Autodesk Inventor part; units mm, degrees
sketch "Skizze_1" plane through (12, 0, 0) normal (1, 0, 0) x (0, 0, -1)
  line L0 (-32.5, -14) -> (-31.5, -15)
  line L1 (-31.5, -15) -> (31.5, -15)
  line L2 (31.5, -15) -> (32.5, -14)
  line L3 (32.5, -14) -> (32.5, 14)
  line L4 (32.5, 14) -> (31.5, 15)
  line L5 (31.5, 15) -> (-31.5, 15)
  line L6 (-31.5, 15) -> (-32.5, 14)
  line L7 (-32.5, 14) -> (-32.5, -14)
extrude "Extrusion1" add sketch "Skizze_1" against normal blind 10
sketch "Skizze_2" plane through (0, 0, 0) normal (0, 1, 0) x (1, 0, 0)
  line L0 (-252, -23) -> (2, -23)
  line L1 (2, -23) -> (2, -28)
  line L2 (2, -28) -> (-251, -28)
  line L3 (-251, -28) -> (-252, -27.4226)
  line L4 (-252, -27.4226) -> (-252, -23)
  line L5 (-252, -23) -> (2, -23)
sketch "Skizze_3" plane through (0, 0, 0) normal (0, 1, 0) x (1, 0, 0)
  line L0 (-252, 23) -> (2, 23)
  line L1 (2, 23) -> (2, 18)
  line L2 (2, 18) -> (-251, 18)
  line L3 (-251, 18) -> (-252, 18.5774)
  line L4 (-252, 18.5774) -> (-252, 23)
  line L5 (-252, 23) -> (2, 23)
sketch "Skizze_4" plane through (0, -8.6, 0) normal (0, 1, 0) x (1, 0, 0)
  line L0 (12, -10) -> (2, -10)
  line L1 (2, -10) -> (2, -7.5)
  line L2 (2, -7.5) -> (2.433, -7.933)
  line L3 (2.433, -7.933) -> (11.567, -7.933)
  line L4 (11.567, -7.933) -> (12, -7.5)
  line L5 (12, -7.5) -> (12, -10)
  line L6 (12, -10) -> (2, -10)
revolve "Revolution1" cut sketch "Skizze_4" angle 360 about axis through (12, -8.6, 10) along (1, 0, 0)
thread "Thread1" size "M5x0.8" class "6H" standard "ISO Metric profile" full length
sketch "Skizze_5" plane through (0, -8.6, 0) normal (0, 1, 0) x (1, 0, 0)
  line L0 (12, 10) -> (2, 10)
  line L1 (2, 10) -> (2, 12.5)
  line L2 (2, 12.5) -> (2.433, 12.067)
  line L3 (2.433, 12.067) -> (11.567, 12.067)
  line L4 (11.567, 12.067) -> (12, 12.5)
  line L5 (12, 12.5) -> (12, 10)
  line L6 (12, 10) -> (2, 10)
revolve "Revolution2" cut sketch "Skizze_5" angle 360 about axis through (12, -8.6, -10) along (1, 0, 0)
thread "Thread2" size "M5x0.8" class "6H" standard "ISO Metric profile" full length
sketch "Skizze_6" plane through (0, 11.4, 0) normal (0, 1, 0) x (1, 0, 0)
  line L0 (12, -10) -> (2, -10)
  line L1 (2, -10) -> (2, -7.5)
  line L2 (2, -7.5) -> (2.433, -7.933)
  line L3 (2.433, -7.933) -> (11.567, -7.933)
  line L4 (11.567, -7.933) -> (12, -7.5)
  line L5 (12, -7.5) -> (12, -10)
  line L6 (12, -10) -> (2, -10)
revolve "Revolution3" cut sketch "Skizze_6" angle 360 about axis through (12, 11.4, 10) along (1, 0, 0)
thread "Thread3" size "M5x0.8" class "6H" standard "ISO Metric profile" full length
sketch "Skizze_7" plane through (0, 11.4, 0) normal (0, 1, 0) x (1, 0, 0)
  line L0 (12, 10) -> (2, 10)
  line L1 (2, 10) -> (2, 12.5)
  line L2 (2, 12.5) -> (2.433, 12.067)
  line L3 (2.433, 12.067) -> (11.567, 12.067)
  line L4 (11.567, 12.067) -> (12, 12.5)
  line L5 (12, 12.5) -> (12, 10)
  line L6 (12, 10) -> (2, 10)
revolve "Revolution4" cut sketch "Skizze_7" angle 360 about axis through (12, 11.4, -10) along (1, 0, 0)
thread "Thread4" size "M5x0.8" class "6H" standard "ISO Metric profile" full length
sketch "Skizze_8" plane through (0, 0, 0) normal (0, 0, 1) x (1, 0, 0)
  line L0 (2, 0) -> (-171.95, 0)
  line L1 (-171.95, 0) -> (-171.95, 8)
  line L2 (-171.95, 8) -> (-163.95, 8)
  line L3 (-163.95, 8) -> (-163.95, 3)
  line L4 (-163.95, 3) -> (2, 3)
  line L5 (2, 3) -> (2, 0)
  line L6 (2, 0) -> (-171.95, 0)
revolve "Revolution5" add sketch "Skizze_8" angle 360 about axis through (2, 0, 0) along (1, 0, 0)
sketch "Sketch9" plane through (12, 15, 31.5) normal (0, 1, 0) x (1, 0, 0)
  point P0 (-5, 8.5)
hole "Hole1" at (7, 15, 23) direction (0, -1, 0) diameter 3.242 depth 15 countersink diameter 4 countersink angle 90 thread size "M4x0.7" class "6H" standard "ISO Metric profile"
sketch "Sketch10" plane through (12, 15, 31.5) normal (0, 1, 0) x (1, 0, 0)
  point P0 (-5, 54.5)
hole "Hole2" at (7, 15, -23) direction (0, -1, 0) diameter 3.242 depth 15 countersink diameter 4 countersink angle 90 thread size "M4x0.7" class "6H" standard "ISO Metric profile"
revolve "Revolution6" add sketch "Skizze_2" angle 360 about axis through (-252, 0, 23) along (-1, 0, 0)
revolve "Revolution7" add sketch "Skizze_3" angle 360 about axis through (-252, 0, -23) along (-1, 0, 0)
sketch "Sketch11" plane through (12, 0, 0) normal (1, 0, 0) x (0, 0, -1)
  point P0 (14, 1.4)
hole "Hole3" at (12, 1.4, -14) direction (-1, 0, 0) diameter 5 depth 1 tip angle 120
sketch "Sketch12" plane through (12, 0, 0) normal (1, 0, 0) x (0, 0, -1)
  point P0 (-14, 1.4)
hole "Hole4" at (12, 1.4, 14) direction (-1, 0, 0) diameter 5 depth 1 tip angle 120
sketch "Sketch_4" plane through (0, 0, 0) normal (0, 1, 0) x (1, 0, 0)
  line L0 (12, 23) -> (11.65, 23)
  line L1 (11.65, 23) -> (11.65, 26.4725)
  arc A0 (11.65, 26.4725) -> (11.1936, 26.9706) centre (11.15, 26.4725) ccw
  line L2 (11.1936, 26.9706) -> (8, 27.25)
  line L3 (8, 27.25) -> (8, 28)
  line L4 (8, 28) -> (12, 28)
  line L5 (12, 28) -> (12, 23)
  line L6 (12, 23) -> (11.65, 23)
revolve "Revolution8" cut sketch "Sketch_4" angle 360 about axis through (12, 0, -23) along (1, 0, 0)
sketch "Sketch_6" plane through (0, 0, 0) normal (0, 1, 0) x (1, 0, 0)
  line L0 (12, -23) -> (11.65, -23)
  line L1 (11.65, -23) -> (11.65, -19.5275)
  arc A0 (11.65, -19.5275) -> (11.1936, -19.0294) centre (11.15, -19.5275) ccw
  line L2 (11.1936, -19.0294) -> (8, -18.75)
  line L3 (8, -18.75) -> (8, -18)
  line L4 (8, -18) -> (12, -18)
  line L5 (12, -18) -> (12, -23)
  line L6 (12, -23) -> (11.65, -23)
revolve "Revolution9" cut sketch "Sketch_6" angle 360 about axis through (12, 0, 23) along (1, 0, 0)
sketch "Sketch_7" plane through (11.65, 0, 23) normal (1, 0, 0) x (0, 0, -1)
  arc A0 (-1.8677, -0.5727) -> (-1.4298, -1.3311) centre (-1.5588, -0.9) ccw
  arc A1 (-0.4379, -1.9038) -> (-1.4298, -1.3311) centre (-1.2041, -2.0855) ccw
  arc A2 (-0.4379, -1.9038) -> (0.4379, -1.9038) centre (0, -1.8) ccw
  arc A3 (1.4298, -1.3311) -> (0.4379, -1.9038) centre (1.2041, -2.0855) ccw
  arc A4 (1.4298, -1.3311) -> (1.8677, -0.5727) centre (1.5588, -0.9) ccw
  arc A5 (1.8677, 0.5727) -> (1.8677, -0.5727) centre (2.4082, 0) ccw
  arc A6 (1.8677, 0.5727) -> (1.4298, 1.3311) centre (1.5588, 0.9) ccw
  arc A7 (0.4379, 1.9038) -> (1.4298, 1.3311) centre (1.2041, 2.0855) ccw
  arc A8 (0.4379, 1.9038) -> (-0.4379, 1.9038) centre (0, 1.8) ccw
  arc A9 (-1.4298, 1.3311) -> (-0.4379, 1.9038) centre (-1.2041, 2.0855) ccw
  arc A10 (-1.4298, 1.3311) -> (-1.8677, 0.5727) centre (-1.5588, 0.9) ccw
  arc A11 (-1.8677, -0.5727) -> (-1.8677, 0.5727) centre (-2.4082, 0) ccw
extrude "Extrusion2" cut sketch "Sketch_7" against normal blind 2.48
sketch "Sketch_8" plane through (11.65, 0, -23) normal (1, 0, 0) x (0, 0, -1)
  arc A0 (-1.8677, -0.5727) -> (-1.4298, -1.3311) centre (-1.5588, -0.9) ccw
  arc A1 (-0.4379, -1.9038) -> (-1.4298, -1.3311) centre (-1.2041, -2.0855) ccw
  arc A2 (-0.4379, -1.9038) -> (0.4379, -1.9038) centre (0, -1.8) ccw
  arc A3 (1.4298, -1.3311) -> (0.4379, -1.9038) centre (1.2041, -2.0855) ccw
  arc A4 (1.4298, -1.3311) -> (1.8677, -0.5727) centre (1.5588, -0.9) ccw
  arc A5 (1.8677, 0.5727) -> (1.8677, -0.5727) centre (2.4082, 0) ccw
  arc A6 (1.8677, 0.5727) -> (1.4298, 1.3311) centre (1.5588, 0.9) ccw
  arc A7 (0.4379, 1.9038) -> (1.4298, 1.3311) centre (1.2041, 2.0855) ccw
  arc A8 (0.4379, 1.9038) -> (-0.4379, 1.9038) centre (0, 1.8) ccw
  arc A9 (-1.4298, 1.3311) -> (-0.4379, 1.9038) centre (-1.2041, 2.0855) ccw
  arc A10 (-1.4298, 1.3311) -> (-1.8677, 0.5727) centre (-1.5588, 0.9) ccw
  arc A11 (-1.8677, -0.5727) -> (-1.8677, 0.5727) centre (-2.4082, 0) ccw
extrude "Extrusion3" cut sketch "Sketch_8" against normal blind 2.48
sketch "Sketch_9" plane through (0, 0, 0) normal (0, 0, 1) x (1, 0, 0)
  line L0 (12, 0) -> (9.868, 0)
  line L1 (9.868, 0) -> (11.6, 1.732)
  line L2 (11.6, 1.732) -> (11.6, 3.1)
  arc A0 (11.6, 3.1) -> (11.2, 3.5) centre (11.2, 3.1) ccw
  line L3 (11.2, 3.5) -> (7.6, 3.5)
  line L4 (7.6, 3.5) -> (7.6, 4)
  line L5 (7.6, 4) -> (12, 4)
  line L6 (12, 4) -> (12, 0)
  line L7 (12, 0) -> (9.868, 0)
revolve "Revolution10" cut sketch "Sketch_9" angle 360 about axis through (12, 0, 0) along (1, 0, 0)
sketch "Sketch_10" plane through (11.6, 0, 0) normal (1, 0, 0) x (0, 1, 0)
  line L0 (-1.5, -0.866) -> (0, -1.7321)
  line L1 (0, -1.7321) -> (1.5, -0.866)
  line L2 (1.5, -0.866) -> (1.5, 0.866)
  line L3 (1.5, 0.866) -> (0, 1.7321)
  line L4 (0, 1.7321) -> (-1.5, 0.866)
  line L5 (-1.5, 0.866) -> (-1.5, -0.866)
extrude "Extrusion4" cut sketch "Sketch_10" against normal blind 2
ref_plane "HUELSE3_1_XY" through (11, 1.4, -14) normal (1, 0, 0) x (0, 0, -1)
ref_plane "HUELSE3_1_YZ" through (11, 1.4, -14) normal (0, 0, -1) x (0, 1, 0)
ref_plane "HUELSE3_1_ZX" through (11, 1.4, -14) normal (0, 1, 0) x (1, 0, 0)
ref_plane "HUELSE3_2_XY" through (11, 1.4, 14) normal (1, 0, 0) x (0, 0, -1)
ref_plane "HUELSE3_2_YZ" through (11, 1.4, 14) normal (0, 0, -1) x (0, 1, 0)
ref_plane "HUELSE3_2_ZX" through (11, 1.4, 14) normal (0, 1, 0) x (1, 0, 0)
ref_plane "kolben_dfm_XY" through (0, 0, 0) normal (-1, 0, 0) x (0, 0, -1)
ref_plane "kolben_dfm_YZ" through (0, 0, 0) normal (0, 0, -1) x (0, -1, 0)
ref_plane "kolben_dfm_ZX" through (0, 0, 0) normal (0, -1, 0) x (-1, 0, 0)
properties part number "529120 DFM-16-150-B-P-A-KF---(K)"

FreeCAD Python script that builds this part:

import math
import FreeCAD as App
import Part
import Sketcher
from FreeCAD import Vector
Q = App.Units.Quantity

doc = App.newDocument("Part")
body = doc.addObject("PartDesign::Body", "Body")

# Sketch on YZ plane
sketch1 = doc.addObject("Sketcher::SketchObject", "Sketch")
body.addObject(sketch1)
sketch1.AttachmentSupport = (doc.YZ_Plane, [""])
sketch1.MapMode = "FlatFace"
sketch1.AttachmentOffset = App.Placement(Vector(0, 0, 12), App.Rotation())
sketch1.addGeometry([
    Part.LineSegment(Vector(14, 32.5, 0), Vector(-14, 32.5, 0)),  # 0
    Part.LineSegment(Vector(-14, 32.5, 0), Vector(-15, 31.5, 0)),  # 1
    Part.LineSegment(Vector(-15, 31.5, 0), Vector(-15, -31.5, 0)),  # 2
    Part.LineSegment(Vector(-15, -31.5, 0), Vector(-14, -32.5, 0)),  # 3
    Part.LineSegment(Vector(-14, -32.5, 0), Vector(14, -32.5, 0)),  # 4
    Part.LineSegment(Vector(14, -32.5, 0), Vector(15, -31.5, 0)),  # 5
    Part.LineSegment(Vector(15, -31.5, 0), Vector(15, 31.5, 0)),  # 6
    Part.LineSegment(Vector(15, 31.5, 0), Vector(14, 32.5, 0)),  # 7
], False)
sketch1.addConstraint([
    Sketcher.Constraint("Coincident", 0, 2, 1, 1),
    Sketcher.Constraint("Coincident", 1, 2, 2, 1),
    Sketcher.Constraint("Coincident", 2, 2, 3, 1),
    Sketcher.Constraint("Coincident", 3, 2, 4, 1),
    Sketcher.Constraint("Coincident", 4, 2, 5, 1),
    Sketcher.Constraint("Coincident", 5, 2, 6, 1),
    Sketcher.Constraint("Coincident", 6, 2, 7, 1),
    Sketcher.Constraint("Coincident", 7, 2, 0, 1),
    Sketcher.Constraint("Horizontal", 0),
    Sketcher.Constraint("Vertical", 2),
    Sketcher.Constraint("Horizontal", 4),
    Sketcher.Constraint("Vertical", 6),
    Sketcher.Constraint("Symmetric", 0, 2, 4, 2, -1, 1),
    Sketcher.Constraint("Symmetric", 1, 2, 5, 2, -1, 1),
    Sketcher.Constraint("Perpendicular", 1, 3),
    Sketcher.Constraint("Perpendicular", 5, 7),
    Sketcher.Constraint("Horizontal", 2, 2, 5, 2),
    Sketcher.Constraint("Horizontal", 1, 2, 6, 2),
    Sketcher.Constraint("Vertical", 0, 2, 3, 2),
    Sketcher.Constraint("DistanceX", 0, 2, 0, 1, 28.0),
    Sketcher.Constraint("DistanceY", 2, 2, 2, 1, 63.0),
    Sketcher.Constraint("DistanceX", 1, 2, -1, 1, 15.0),
])
pad1 = doc.addObject("PartDesign::Pad", "Pad")
body.addObject(pad1)
pad1.Profile = sketch1
pad1.Length = 10
pad1.Reversed = True

# Sketch on XZ plane
sketch2 = doc.addObject("Sketcher::SketchObject", "Sketch001")
body.addObject(sketch2)
sketch2.AttachmentSupport = (doc.XZ_Plane, [""])
sketch2.MapMode = "FlatFace"
sketch2.AttachmentOffset = App.Placement(Vector(0, 0, 8.6), App.Rotation())
sketch2.addGeometry([
    Part.LineSegment(Vector(2, 10, 0), Vector(12, 10, 0)),  # 0
    Part.LineSegment(Vector(12, 10, 0), Vector(12, 7.5, 0)),  # 1
    Part.LineSegment(Vector(12, 7.5, 0), Vector(11.6, 7.9, 0)),  # 2
    Part.LineSegment(Vector(11.6, 7.9, 0), Vector(2.4, 7.9, 0)),  # 3
    Part.LineSegment(Vector(2.4, 7.9, 0), Vector(2, 7.5, 0)),  # 4
    Part.LineSegment(Vector(2, 7.5, 0), Vector(2, 10, 0)),  # 5
], False)
sketch2.addGeometry(Part.LineSegment(Vector(2, 10, 0), Vector(12, 10, 0)), True)  # axis
sketch2.addConstraint([
    Sketcher.Constraint("Coincident", 0, 2, 1, 1),
    Sketcher.Constraint("Coincident", 1, 2, 2, 1),
    Sketcher.Constraint("Coincident", 2, 2, 3, 1),
    Sketcher.Constraint("Coincident", 3, 2, 4, 1),
    Sketcher.Constraint("Coincident", 4, 2, 5, 1),
    Sketcher.Constraint("Coincident", 5, 2, 0, 1),
    Sketcher.Constraint("Horizontal", 0),
    Sketcher.Constraint("Vertical", 1),
    Sketcher.Constraint("Horizontal", 3),
    Sketcher.Constraint("Vertical", 5),
    Sketcher.Constraint("Horizontal", 6),
    Sketcher.Constraint("Coincident", 6, 1, 5, 2),
    Sketcher.Constraint("Perpendicular", 2, 4),
    Sketcher.Constraint("Horizontal", 1, 2, 4, 2),
    Sketcher.Constraint("Vertical", 1, 2, 6, 2),
    Sketcher.Constraint("Equal", 2, 4),
    Sketcher.Constraint("DistanceX", 0, 1, 0, 2, 10.0),
    Sketcher.Constraint("DistanceY", 1, 2, 1, 1, 2.5),
    Sketcher.Constraint("DistanceX", -1, 1, 0, 2, 12.0),
    Sketcher.Constraint("DistanceY", -1, 1, 0, 2, 10.0),
    Sketcher.Constraint("DistanceX", 3, 2, 3, 1, 9.134),
])
groove = doc.addObject("PartDesign::Groove", "Groove")
body.addObject(groove)
groove.Profile = sketch2
groove.ReferenceAxis = (sketch2, ["Axis0"])
groove.Angle = 360

# Sketch on XZ plane
sketch3 = doc.addObject("Sketcher::SketchObject", "Sketch002")
body.addObject(sketch3)
sketch3.AttachmentSupport = (doc.XZ_Plane, [""])
sketch3.MapMode = "FlatFace"
sketch3.AttachmentOffset = App.Placement(Vector(0, 0, 8.6), App.Rotation())
sketch3.addGeometry([
    Part.LineSegment(Vector(2, -10, 0), Vector(12, -10, 0)),  # 0
    Part.LineSegment(Vector(12, -10, 0), Vector(12, -12.5, 0)),  # 1
    Part.LineSegment(Vector(12, -12.5, 0), Vector(11.6, -12.1, 0)),  # 2
    Part.LineSegment(Vector(11.6, -12.1, 0), Vector(2.4, -12.1, 0)),  # 3
    Part.LineSegment(Vector(2.4, -12.1, 0), Vector(2, -12.5, 0)),  # 4
    Part.LineSegment(Vector(2, -12.5, 0), Vector(2, -10, 0)),  # 5
], False)
sketch3.addGeometry(Part.LineSegment(Vector(2, -10, 0), Vector(12, -10, 0)), True)  # axis
sketch3.addConstraint([
    Sketcher.Constraint("Coincident", 0, 2, 1, 1),
    Sketcher.Constraint("Coincident", 1, 2, 2, 1),
    Sketcher.Constraint("Coincident", 2, 2, 3, 1),
    Sketcher.Constraint("Coincident", 3, 2, 4, 1),
    Sketcher.Constraint("Coincident", 4, 2, 5, 1),
    Sketcher.Constraint("Coincident", 5, 2, 0, 1),
    Sketcher.Constraint("Horizontal", 0),
    Sketcher.Constraint("Vertical", 1),
    Sketcher.Constraint("Horizontal", 3),
    Sketcher.Constraint("Vertical", 5),
    Sketcher.Constraint("Horizontal", 6),
    Sketcher.Constraint("Coincident", 6, 1, 5, 2),
    Sketcher.Constraint("Perpendicular", 2, 4),
    Sketcher.Constraint("Horizontal", 1, 2, 4, 2),
    Sketcher.Constraint("Vertical", 1, 2, 6, 2),
    Sketcher.Constraint("Equal", 2, 4),
    Sketcher.Constraint("DistanceX", 0, 1, 0, 2, 10.0),
    Sketcher.Constraint("DistanceY", 1, 2, 1, 1, 2.5),
    Sketcher.Constraint("DistanceX", -1, 1, 0, 2, 12.0),
    Sketcher.Constraint("DistanceY", 0, 2, -1, 1, 10.0),
    Sketcher.Constraint("DistanceX", 3, 2, 3, 1, 9.134),
])
groove2 = doc.addObject("PartDesign::Groove", "Groove001")
body.addObject(groove2)
groove2.Profile = sketch3
groove2.ReferenceAxis = (sketch3, ["Axis0"])
groove2.Angle = 360

# Sketch on XZ plane
sketch4 = doc.addObject("Sketcher::SketchObject", "Sketch003")
body.addObject(sketch4)
sketch4.AttachmentSupport = (doc.XZ_Plane, [""])
sketch4.MapMode = "FlatFace"
sketch4.AttachmentOffset = App.Placement(Vector(0, 0, -11.4), App.Rotation())
sketch4.addGeometry([
    Part.LineSegment(Vector(2, 10, 0), Vector(12, 10, 0)),  # 0
    Part.LineSegment(Vector(12, 10, 0), Vector(12, 7.5, 0)),  # 1
    Part.LineSegment(Vector(12, 7.5, 0), Vector(11.6, 7.9, 0)),  # 2
    Part.LineSegment(Vector(11.6, 7.9, 0), Vector(2.4, 7.9, 0)),  # 3
    Part.LineSegment(Vector(2.4, 7.9, 0), Vector(2, 7.5, 0)),  # 4
    Part.LineSegment(Vector(2, 7.5, 0), Vector(2, 10, 0)),  # 5
], False)
sketch4.addGeometry(Part.LineSegment(Vector(2, 10, 0), Vector(12, 10, 0)), True)  # axis
sketch4.addConstraint([
    Sketcher.Constraint("Coincident", 0, 2, 1, 1),
    Sketcher.Constraint("Coincident", 1, 2, 2, 1),
    Sketcher.Constraint("Coincident", 2, 2, 3, 1),
    Sketcher.Constraint("Coincident", 3, 2, 4, 1),
    Sketcher.Constraint("Coincident", 4, 2, 5, 1),
    Sketcher.Constraint("Coincident", 5, 2, 0, 1),
    Sketcher.Constraint("Horizontal", 0),
    Sketcher.Constraint("Vertical", 1),
    Sketcher.Constraint("Horizontal", 3),
    Sketcher.Constraint("Vertical", 5),
    Sketcher.Constraint("Horizontal", 6),
    Sketcher.Constraint("Coincident", 6, 1, 5, 2),
    Sketcher.Constraint("Perpendicular", 2, 4),
    Sketcher.Constraint("Horizontal", 1, 2, 4, 2),
    Sketcher.Constraint("Vertical", 1, 2, 6, 2),
    Sketcher.Constraint("Equal", 2, 4),
    Sketcher.Constraint("DistanceX", 0, 1, 0, 2, 10.0),
    Sketcher.Constraint("DistanceY", 1, 2, 1, 1, 2.5),
    Sketcher.Constraint("DistanceX", -1, 1, 0, 2, 12.0),
    Sketcher.Constraint("DistanceY", -1, 1, 0, 2, 10.0),
    Sketcher.Constraint("DistanceX", 3, 2, 3, 1, 9.134),
])
groove3 = doc.addObject("PartDesign::Groove", "Groove002")
body.addObject(groove3)
groove3.Profile = sketch4
groove3.ReferenceAxis = (sketch4, ["Axis0"])
groove3.Angle = 360

# Sketch on XZ plane
sketch5 = doc.addObject("Sketcher::SketchObject", "Sketch004")
body.addObject(sketch5)
sketch5.AttachmentSupport = (doc.XZ_Plane, [""])
sketch5.MapMode = "FlatFace"
sketch5.AttachmentOffset = App.Placement(Vector(0, 0, -11.4), App.Rotation())
sketch5.addGeometry([
    Part.LineSegment(Vector(2, -10, 0), Vector(12, -10, 0)),  # 0
    Part.LineSegment(Vector(12, -10, 0), Vector(12, -12.5, 0)),  # 1
    Part.LineSegment(Vector(12, -12.5, 0), Vector(11.6, -12.1, 0)),  # 2
    Part.LineSegment(Vector(11.6, -12.1, 0), Vector(2.4, -12.1, 0)),  # 3
    Part.LineSegment(Vector(2.4, -12.1, 0), Vector(2, -12.5, 0)),  # 4
    Part.LineSegment(Vector(2, -12.5, 0), Vector(2, -10, 0)),  # 5
], False)
sketch5.addGeometry(Part.LineSegment(Vector(2, -10, 0), Vector(12, -10, 0)), True)  # axis
sketch5.addConstraint([
    Sketcher.Constraint("Coincident", 0, 2, 1, 1),
    Sketcher.Constraint("Coincident", 1, 2, 2, 1),
    Sketcher.Constraint("Coincident", 2, 2, 3, 1),
    Sketcher.Constraint("Coincident", 3, 2, 4, 1),
    Sketcher.Constraint("Coincident", 4, 2, 5, 1),
    Sketcher.Constraint("Coincident", 5, 2, 0, 1),
    Sketcher.Constraint("Horizontal", 0),
    Sketcher.Constraint("Vertical", 1),
    Sketcher.Constraint("Horizontal", 3),
    Sketcher.Constraint("Vertical", 5),
    Sketcher.Constraint("Horizontal", 6),
    Sketcher.Constraint("Coincident", 6, 1, 5, 2),
    Sketcher.Constraint("Perpendicular", 2, 4),
    Sketcher.Constraint("Horizontal", 1, 2, 4, 2),
    Sketcher.Constraint("Vertical", 1, 2, 6, 2),
    Sketcher.Constraint("Equal", 2, 4),
    Sketcher.Constraint("DistanceX", 0, 1, 0, 2, 10.0),
    Sketcher.Constraint("DistanceY", 1, 2, 1, 1, 2.5),
    Sketcher.Constraint("DistanceX", -1, 1, 0, 2, 12.0),
    Sketcher.Constraint("DistanceY", 0, 2, -1, 1, 10.0),
    Sketcher.Constraint("DistanceX", 3, 2, 3, 1, 9.134),
])
groove4 = doc.addObject("PartDesign::Groove", "Groove003")
body.addObject(groove4)
groove4.Profile = sketch5
groove4.ReferenceAxis = (sketch5, ["Axis0"])
groove4.Angle = 360

# Sketch on XY plane
sketch6 = doc.addObject("Sketcher::SketchObject", "Sketch005")
body.addObject(sketch6)
sketch6.AttachmentSupport = (doc.XY_Plane, [""])
sketch6.MapMode = "FlatFace"
sketch6.addGeometry([
    Part.LineSegment(Vector(-171.9, 0, 0), Vector(2, 0, 0)),  # 0
    Part.LineSegment(Vector(2, 0, 0), Vector(2, 3, 0)),  # 1
    Part.LineSegment(Vector(2, 3, 0), Vector(-163.9, 3, 0)),  # 2
    Part.LineSegment(Vector(-163.9, 3, 0), Vector(-163.9, 8, 0)),  # 3
    Part.LineSegment(Vector(-163.9, 8, 0), Vector(-171.9, 8, 0)),  # 4
    Part.LineSegment(Vector(-171.9, 8, 0), Vector(-171.9, 0, 0)),  # 5
], False)
sketch6.addConstraint([
    Sketcher.Constraint("Coincident", 0, 2, 1, 1),
    Sketcher.Constraint("Coincident", 1, 2, 2, 1),
    Sketcher.Constraint("Coincident", 2, 2, 3, 1),
    Sketcher.Constraint("Coincident", 3, 2, 4, 1),
    Sketcher.Constraint("Coincident", 4, 2, 5, 1),
    Sketcher.Constraint("Coincident", 5, 2, 0, 1),
    Sketcher.Constraint("Horizontal", 0),
    Sketcher.Constraint("Vertical", 1),
    Sketcher.Constraint("Horizontal", 2),
    Sketcher.Constraint("Vertical", 3),
    Sketcher.Constraint("Horizontal", 4),
    Sketcher.Constraint("Vertical", 5),
    Sketcher.Constraint("PointOnObject", 0, 2, -1),
    Sketcher.Constraint("Equal", 4, 5),
    Sketcher.Constraint("DistanceX", 4, 2, 4, 1, 8.0),
    Sketcher.Constraint("DistanceY", 1, 1, 1, 2, 3.0),
    Sketcher.Constraint("DistanceX", -1, 1, 0, 2, 2.0),
    Sketcher.Constraint("DistanceX", 0, 1, 0, 2, 173.95),
])
revolution = doc.addObject("PartDesign::Revolution", "Revolution")
body.addObject(revolution)
revolution.Profile = sketch6
revolution.ReferenceAxis = (sketch6, ["H_Axis"])
revolution.Angle = 360

# Sketch on XZ plane
sketch7 = doc.addObject("Sketcher::SketchObject", "Sketch006")
body.addObject(sketch7)
sketch7.AttachmentSupport = (doc.XZ_Plane, [""])
sketch7.MapMode = "FlatFace"
sketch7.AttachmentOffset = App.Placement(Vector(0, 0, -15), App.Rotation())
sketch7.addGeometry(Part.Circle(Vector(7, 23, 0), Vector(0, 0, 1), 1.6), False)
sketch7.addConstraint([
    Sketcher.Constraint("Diameter", 0, 3.242),
    Sketcher.Constraint("DistanceX", -1, 1, 0, 3, 7.0),
    Sketcher.Constraint("DistanceY", -1, 1, 0, 3, 23.0),
])
doc.recompute()
hole = doc.addObject("PartDesign::Hole", "Hole")
body.addObject(hole)
hole.Profile = sketch7
hole.ThreadType = "None"
hole.Diameter = 3.242
hole.DepthType = "Dimension"
hole.Depth = 15
hole.DrillPoint = "Flat"
hole.HoleCutType = "Countersink"
hole.HoleCutDiameter = 4
hole.HoleCutCountersinkAngle = 90
hole.Reversed = True

# Sketch on XZ plane
sketch8 = doc.addObject("Sketcher::SketchObject", "Sketch007")
body.addObject(sketch8)
sketch8.AttachmentSupport = (doc.XZ_Plane, [""])
sketch8.MapMode = "FlatFace"
sketch8.AttachmentOffset = App.Placement(Vector(0, 0, -15), App.Rotation())
sketch8.addGeometry(Part.Circle(Vector(7, -23, 0), Vector(0, 0, 1), 1.6), False)
sketch8.addConstraint([
    Sketcher.Constraint("Diameter", 0, 3.242),
    Sketcher.Constraint("DistanceX", -1, 1, 0, 3, 7.0),
    Sketcher.Constraint("DistanceY", 0, 3, -1, 1, 23.0),
])
doc.recompute()
hole2 = doc.addObject("PartDesign::Hole", "Hole001")
body.addObject(hole2)
hole2.Profile = sketch8
hole2.ThreadType = "None"
hole2.Diameter = 3.242
hole2.DepthType = "Dimension"
hole2.Depth = 15
hole2.DrillPoint = "Flat"
hole2.HoleCutType = "Countersink"
hole2.HoleCutDiameter = 4
hole2.HoleCutCountersinkAngle = 90
hole2.Reversed = True

# Sketch on XZ plane
sketch9 = doc.addObject("Sketcher::SketchObject", "Sketch008")
body.addObject(sketch9)
sketch9.AttachmentSupport = (doc.XZ_Plane, [""])
sketch9.MapMode = "FlatFace"
sketch9.addGeometry([
    Part.LineSegment(Vector(2, 23, 0), Vector(-252, 23, 0)),  # 0
    Part.LineSegment(Vector(-252, 23, 0), Vector(-252, 27.4, 0)),  # 1
    Part.LineSegment(Vector(-252, 27.4, 0), Vector(-251, 28, 0)),  # 2
    Part.LineSegment(Vector(-251, 28, 0), Vector(2, 28, 0)),  # 3
    Part.LineSegment(Vector(2, 28, 0), Vector(2, 23, 0)),  # 4
], False)
sketch9.addGeometry(Part.LineSegment(Vector(2, 23, 0), Vector(-252, 23, 0)), True)  # axis
sketch9.addConstraint([
    Sketcher.Constraint("Coincident", 0, 2, 1, 1),
    Sketcher.Constraint("Coincident", 1, 2, 2, 1),
    Sketcher.Constraint("Coincident", 2, 2, 3, 1),
    Sketcher.Constraint("Coincident", 3, 2, 4, 1),
    Sketcher.Constraint("Coincident", 4, 2, 0, 1),
    Sketcher.Constraint("Horizontal", 0),
    Sketcher.Constraint("Vertical", 1),
    Sketcher.Constraint("Horizontal", 3),
    Sketcher.Constraint("Vertical", 4),
    Sketcher.Constraint("Horizontal", 5),
    Sketcher.Constraint("Coincident", 5, 1, 4, 2),
    Sketcher.Constraint("Vertical", 1, 2, 5, 2),
    Sketcher.Constraint("DistanceX", 0, 2, 0, 1, 254.0),
    Sketcher.Constraint("DistanceX", 3, 1, 3, 2, 253.0),
    Sketcher.Constraint("DistanceY", 4, 2, 4, 1, 5.0),
    Sketcher.Constraint("DistanceX", 0, 2, -1, 1, 252.0),
    Sketcher.Constraint("DistanceY", -1, 1, 0, 2, 23.0),
    Sketcher.Constraint("DistanceY", 1, 1, 1, 2, 4.4226),
])
revolution2 = doc.addObject("PartDesign::Revolution", "Revolution001")
body.addObject(revolution2)
revolution2.Profile = sketch9
revolution2.ReferenceAxis = (sketch9, ["Axis0"])
revolution2.Angle = 360

# Sketch on XZ plane
sketch10 = doc.addObject("Sketcher::SketchObject", "Sketch009")
body.addObject(sketch10)
sketch10.AttachmentSupport = (doc.XZ_Plane, [""])
sketch10.MapMode = "FlatFace"
sketch10.addGeometry([
    Part.LineSegment(Vector(2, -23, 0), Vector(-252, -23, 0)),  # 0
    Part.LineSegment(Vector(-252, -23, 0), Vector(-252, -18.6, 0)),  # 1
    Part.LineSegment(Vector(-252, -18.6, 0), Vector(-251, -18, 0)),  # 2
    Part.LineSegment(Vector(-251, -18, 0), Vector(2, -18, 0)),  # 3
    Part.LineSegment(Vector(2, -18, 0), Vector(2, -23, 0)),  # 4
], False)
sketch10.addGeometry(Part.LineSegment(Vector(2, -23, 0), Vector(-252, -23, 0)), True)  # axis
sketch10.addConstraint([
    Sketcher.Constraint("Coincident", 0, 2, 1, 1),
    Sketcher.Constraint("Coincident", 1, 2, 2, 1),
    Sketcher.Constraint("Coincident", 2, 2, 3, 1),
    Sketcher.Constraint("Coincident", 3, 2, 4, 1),
    Sketcher.Constraint("Coincident", 4, 2, 0, 1),
    Sketcher.Constraint("Horizontal", 0),
    Sketcher.Constraint("Vertical", 1),
    Sketcher.Constraint("Horizontal", 3),
    Sketcher.Constraint("Vertical", 4),
    Sketcher.Constraint("Horizontal", 5),
    Sketcher.Constraint("Coincident", 5, 1, 4, 2),
    Sketcher.Constraint("Vertical", 1, 2, 5, 2),
    Sketcher.Constraint("DistanceX", 0, 2, 0, 1, 254.0),
    Sketcher.Constraint("DistanceX", 3, 1, 3, 2, 253.0),
    Sketcher.Constraint("DistanceY", 4, 2, 4, 1, 5.0),
    Sketcher.Constraint("DistanceX", 0, 2, -1, 1, 252.0),
    Sketcher.Constraint("DistanceY", 0, 2, -1, 1, 23.0),
    Sketcher.Constraint("DistanceY", 1, 1, 1, 2, 4.4226),
])
revolution3 = doc.addObject("PartDesign::Revolution", "Revolution002")
body.addObject(revolution3)
revolution3.Profile = sketch10
revolution3.ReferenceAxis = (sketch10, ["Axis0"])
revolution3.Angle = 360

# Sketch on YZ plane
sketch11 = doc.addObject("Sketcher::SketchObject", "Sketch010")
body.addObject(sketch11)
sketch11.AttachmentSupport = (doc.YZ_Plane, [""])
sketch11.MapMode = "FlatFace"
sketch11.AttachmentOffset = App.Placement(Vector(0, 0, 12), App.Rotation())
sketch11.addGeometry(Part.Circle(Vector(1.4, -14, 0), Vector(0, 0, 1), 2.5), False)
sketch11.addConstraint([
    Sketcher.Constraint("Diameter", 0, 5.0),
    Sketcher.Constraint("DistanceY", 0, 3, -1, 1, 14.0),
    Sketcher.Constraint("DistanceX", -1, 1, 0, 3, 1.4),
])
doc.recompute()
hole3 = doc.addObject("PartDesign::Hole", "Hole002")
body.addObject(hole3)
hole3.Profile = sketch11
hole3.ThreadType = "None"
hole3.Diameter = 5
hole3.DepthType = "Dimension"
hole3.Depth = 1
hole3.DrillPoint = "Angled"
hole3.DrillPointAngle = 120

# Sketch on YZ plane
sketch12 = doc.addObject("Sketcher::SketchObject", "Sketch011")
body.addObject(sketch12)
sketch12.AttachmentSupport = (doc.YZ_Plane, [""])
sketch12.MapMode = "FlatFace"
sketch12.AttachmentOffset = App.Placement(Vector(0, 0, 12), App.Rotation())
sketch12.addGeometry(Part.Circle(Vector(1.4, 14, 0), Vector(0, 0, 1), 2.5), False)
sketch12.addConstraint([
    Sketcher.Constraint("Diameter", 0, 5.0),
    Sketcher.Constraint("DistanceY", -1, 1, 0, 3, 14.0),
    Sketcher.Constraint("DistanceX", -1, 1, 0, 3, 1.4),
])
doc.recompute()
hole4 = doc.addObject("PartDesign::Hole", "Hole003")
body.addObject(hole4)
hole4.Profile = sketch12
hole4.ThreadType = "None"
hole4.Diameter = 5
hole4.DepthType = "Dimension"
hole4.Depth = 1
hole4.DrillPoint = "Angled"
hole4.DrillPointAngle = 120

# Sketch on XZ plane
sketch13 = doc.addObject("Sketcher::SketchObject", "Sketch012")
body.addObject(sketch13)
sketch13.AttachmentSupport = (doc.XZ_Plane, [""])
sketch13.MapMode = "FlatFace"
sketch13.addGeometry([
    Part.LineSegment(Vector(11.65, -23, 0), Vector(12, -23, 0)),  # 0
    Part.LineSegment(Vector(12, -23, 0), Vector(12, -28, 0)),  # 1
    Part.LineSegment(Vector(12, -28, 0), Vector(8, -28, 0)),  # 2
    Part.LineSegment(Vector(8, -28, 0), Vector(8, -27.25, 0)),  # 3
    Part.LineSegment(Vector(8, -27.25, 0), Vector(11.19, -26.97, 0)),  # 4
    Part.ArcOfCircle(Part.Circle(Vector(11.15, -26.47, 0), Vector(0, 0, 1), 0.5), math.radians(-85), math.radians(0)),  # 5
    Part.LineSegment(Vector(11.65, -26.47, 0), Vector(11.65, -23, 0)),  # 6
], False)
sketch13.addGeometry(Part.LineSegment(Vector(8, -23, 0), Vector(12, -23, 0)), True)  # axis
sketch13.addConstraint([
    Sketcher.Constraint("Coincident", 0, 2, 1, 1),
    Sketcher.Constraint("Coincident", 1, 2, 2, 1),
    Sketcher.Constraint("Coincident", 2, 2, 3, 1),
    Sketcher.Constraint("Coincident", 3, 2, 4, 1),
    Sketcher.Constraint("Tangent", 4, 2, 5, 1),
    Sketcher.Constraint("Tangent", 5, 2, 6, 1),
    Sketcher.Constraint("Coincident", 6, 2, 0, 1),
    Sketcher.Constraint("Horizontal", 0),
    Sketcher.Constraint("Vertical", 1),
    Sketcher.Constraint("Horizontal", 2),
    Sketcher.Constraint("Vertical", 3),
    Sketcher.Constraint("Vertical", 6),
    Sketcher.Constraint("Horizontal", 7),
    Sketcher.Constraint("Coincident", 7, 2, 0, 2),
    Sketcher.Constraint("Vertical", 3, 2, 7, 1),
    Sketcher.Constraint("Radius", 5, 0.5),
    Sketcher.Constraint("DistanceX", 2, 2, 2, 1, 4.0),
    Sketcher.Constraint("DistanceY", 1, 2, 1, 1, 5.0),
    Sketcher.Constraint("Angle", 4, Q("5 deg")),
    Sketcher.Constraint("DistanceX", -1, 1, 0, 2, 12.0),
    Sketcher.Constraint("DistanceY", 0, 2, -1, 1, 23.0),
    Sketcher.Constraint("DistanceX", 0, 1, 0, 2, 0.35),
    Sketcher.Constraint("DistanceY", 3, 1, 3, 2, 0.75),
])
groove5 = doc.addObject("PartDesign::Groove", "Groove004")
body.addObject(groove5)
groove5.Profile = sketch13
groove5.ReferenceAxis = (sketch13, ["Axis0"])
groove5.Angle = 360

# Sketch on XZ plane
sketch14 = doc.addObject("Sketcher::SketchObject", "Sketch013")
body.addObject(sketch14)
sketch14.AttachmentSupport = (doc.XZ_Plane, [""])
sketch14.MapMode = "FlatFace"
sketch14.addGeometry([
    Part.LineSegment(Vector(11.65, 23, 0), Vector(12, 23, 0)),  # 0
    Part.LineSegment(Vector(12, 23, 0), Vector(12, 18, 0)),  # 1
    Part.LineSegment(Vector(12, 18, 0), Vector(8, 18, 0)),  # 2
    Part.LineSegment(Vector(8, 18, 0), Vector(8, 18.75, 0)),  # 3
    Part.LineSegment(Vector(8, 18.75, 0), Vector(11.19, 19.03, 0)),  # 4
    Part.ArcOfCircle(Part.Circle(Vector(11.15, 19.53, 0), Vector(0, 0, 1), 0.5), math.radians(-85), math.radians(0)),  # 5
    Part.LineSegment(Vector(11.65, 19.53, 0), Vector(11.65, 23, 0)),  # 6
], False)
sketch14.addGeometry(Part.LineSegment(Vector(8, 23, 0), Vector(12, 23, 0)), True)  # axis
sketch14.addConstraint([
    Sketcher.Constraint("Coincident", 0, 2, 1, 1),
    Sketcher.Constraint("Coincident", 1, 2, 2, 1),
    Sketcher.Constraint("Coincident", 2, 2, 3, 1),
    Sketcher.Constraint("Coincident", 3, 2, 4, 1),
    Sketcher.Constraint("Tangent", 4, 2, 5, 1),
    Sketcher.Constraint("Tangent", 5, 2, 6, 1),
    Sketcher.Constraint("Coincident", 6, 2, 0, 1),
    Sketcher.Constraint("Horizontal", 0),
    Sketcher.Constraint("Vertical", 1),
    Sketcher.Constraint("Horizontal", 2),
    Sketcher.Constraint("Vertical", 3),
    Sketcher.Constraint("Vertical", 6),
    Sketcher.Constraint("Horizontal", 7),
    Sketcher.Constraint("Coincident", 7, 2, 0, 2),
    Sketcher.Constraint("Vertical", 3, 2, 7, 1),
    Sketcher.Constraint("Radius", 5, 0.5),
    Sketcher.Constraint("DistanceX", 2, 2, 2, 1, 4.0),
    Sketcher.Constraint("DistanceY", 1, 2, 1, 1, 5.0),
    Sketcher.Constraint("Angle", 4, Q("5 deg")),
    Sketcher.Constraint("DistanceX", -1, 1, 0, 2, 12.0),
    Sketcher.Constraint("DistanceY", -1, 1, 0, 2, 23.0),
    Sketcher.Constraint("DistanceX", 0, 1, 0, 2, 0.35),
    Sketcher.Constraint("DistanceY", 3, 1, 3, 2, 0.75),
])
groove6 = doc.addObject("PartDesign::Groove", "Groove005")
body.addObject(groove6)
groove6.Profile = sketch14
groove6.ReferenceAxis = (sketch14, ["Axis0"])
groove6.Angle = 360

# Sketch on YZ plane
sketch15 = doc.addObject("Sketcher::SketchObject", "Sketch014")
body.addObject(sketch15)
sketch15.AttachmentSupport = (doc.YZ_Plane, [""])
sketch15.MapMode = "FlatFace"
sketch15.AttachmentOffset = App.Placement(Vector(0, 0, 11.65), App.Rotation())
sketch15.addGeometry([
    Part.ArcOfCircle(Part.Circle(Vector(0, 25.41, 0), Vector(0, 0, 1), 0.79), math.radians(-137), math.radians(-43)),  # 0
    Part.ArcOfCircle(Part.Circle(Vector(-0.9, 24.56, 0), Vector(0, 0, 1), 0.45), math.radians(43), math.radians(197)),  # 1
    Part.ArcOfCircle(Part.Circle(Vector(-2.09, 24.2, 0), Vector(0, 0, 1), 0.79), math.radians(-77), math.radians(17)),  # 2
    Part.ArcOfCircle(Part.Circle(Vector(-1.8, 23, 0), Vector(0, 0, 1), 0.45), math.radians(103), math.radians(257)),  # 3
    Part.ArcOfCircle(Part.Circle(Vector(-2.09, 21.8, 0), Vector(0, 0, 1), 0.79), math.radians(-17), math.radians(77)),  # 4
    Part.ArcOfCircle(Part.Circle(Vector(-0.9, 21.44, 0), Vector(0, 0, 1), 0.45), math.radians(163), math.radians(317)),  # 5
    Part.ArcOfCircle(Part.Circle(Vector(0, 20.59, 0), Vector(0, 0, 1), 0.79), math.radians(43), math.radians(137)),  # 6
    Part.ArcOfCircle(Part.Circle(Vector(0.9, 21.44, 0), Vector(0, 0, 1), 0.45), math.radians(-137), math.radians(17)),  # 7
    Part.ArcOfCircle(Part.Circle(Vector(2.09, 21.8, 0), Vector(0, 0, 1), 0.79), math.radians(103), math.radians(197)),  # 8
    Part.ArcOfCircle(Part.Circle(Vector(1.8, 23, 0), Vector(0, 0, 1), 0.45), math.radians(-77), math.radians(77)),  # 9
    Part.ArcOfCircle(Part.Circle(Vector(2.09, 24.2, 0), Vector(0, 0, 1), 0.79), math.radians(163), math.radians(257)),  # 10
    Part.ArcOfCircle(Part.Circle(Vector(0.9, 24.56, 0), Vector(0, 0, 1), 0.45), math.radians(-17), math.radians(137)),  # 11
], False)
sketch15.addConstraint([
    Sketcher.Constraint("Tangent", 0, 1, 1, 1),
    Sketcher.Constraint("Tangent", 1, 2, 2, 2),
    Sketcher.Constraint("Tangent", 2, 1, 3, 1),
    Sketcher.Constraint("Tangent", 3, 2, 4, 2),
    Sketcher.Constraint("Tangent", 4, 1, 5, 1),
    Sketcher.Constraint("Tangent", 5, 2, 6, 2),
    Sketcher.Constraint("Tangent", 6, 1, 7, 1),
    Sketcher.Constraint("Tangent", 7, 2, 8, 2),
    Sketcher.Constraint("Tangent", 8, 1, 9, 1),
    Sketcher.Constraint("Tangent", 9, 2, 10, 2),
    Sketcher.Constraint("Tangent", 10, 1, 11, 1),
    Sketcher.Constraint("Tangent", 11, 2, 0, 2),
    Sketcher.Constraint("Equal", 0, 2),
    Sketcher.Constraint("Equal", 1, 3),
    Sketcher.Constraint("Equal", 2, 4),
    Sketcher.Constraint("Equal", 3, 5),
    Sketcher.Constraint("Equal", 4, 6),
    Sketcher.Constraint("Equal", 5, 7),
    Sketcher.Constraint("Equal", 6, 8),
    Sketcher.Constraint("Equal", 7, 9),
    Sketcher.Constraint("Equal", 8, 10),
    Sketcher.Constraint("Equal", 9, 11),
    Sketcher.Constraint("Symmetric", 5, 3, 7, 3, -2),
    Sketcher.Constraint("Symmetric", 3, 3, 9, 3, -2),
    Sketcher.Constraint("Symmetric", 1, 3, 11, 3, -2),
    Sketcher.Constraint("Vertical", 2, 3, 4, 3),
    Sketcher.Constraint("Vertical", 1, 3, 5, 3),
    Sketcher.Constraint("Radius", 1, 0.45),
    Sketcher.Constraint("DistanceY", -1, 1, 3, 3, 23.0),
    Sketcher.Constraint("DistanceX", 1, 3, -1, 1, 0.9),
    Sketcher.Constraint("DistanceX", 3, 3, -1, 1, 1.8),
    Sketcher.Constraint("Radius", 0, 0.7875),
    Sketcher.Constraint("DistanceY", -1, 1, 2, 3, 24.204),
])
pocket1 = doc.addObject("PartDesign::Pocket", "Pocket")
body.addObject(pocket1)
pocket1.Profile = sketch15
pocket1.Length = 2.48

# Sketch on YZ plane
sketch16 = doc.addObject("Sketcher::SketchObject", "Sketch015")
body.addObject(sketch16)
sketch16.AttachmentSupport = (doc.YZ_Plane, [""])
sketch16.MapMode = "FlatFace"
sketch16.AttachmentOffset = App.Placement(Vector(0, 0, 11.65), App.Rotation())
sketch16.addGeometry([
    Part.ArcOfCircle(Part.Circle(Vector(0, -20.59, 0), Vector(0, 0, 1), 0.79), math.radians(-137), math.radians(-43)),  # 0
    Part.ArcOfCircle(Part.Circle(Vector(-0.9, -21.44, 0), Vector(0, 0, 1), 0.45), math.radians(43), math.radians(197)),  # 1
    Part.ArcOfCircle(Part.Circle(Vector(-2.09, -21.8, 0), Vector(0, 0, 1), 0.79), math.radians(-77), math.radians(17)),  # 2
    Part.ArcOfCircle(Part.Circle(Vector(-1.8, -23, 0), Vector(0, 0, 1), 0.45), math.radians(103), math.radians(257)),  # 3
    Part.ArcOfCircle(Part.Circle(Vector(-2.09, -24.2, 0), Vector(0, 0, 1), 0.79), math.radians(-17), math.radians(77)),  # 4
    Part.ArcOfCircle(Part.Circle(Vector(-0.9, -24.56, 0), Vector(0, 0, 1), 0.45), math.radians(163), math.radians(317)),  # 5
    Part.ArcOfCircle(Part.Circle(Vector(0, -25.41, 0), Vector(0, 0, 1), 0.79), math.radians(43), math.radians(137)),  # 6
    Part.ArcOfCircle(Part.Circle(Vector(0.9, -24.56, 0), Vector(0, 0, 1), 0.45), math.radians(-137), math.radians(17)),  # 7
    Part.ArcOfCircle(Part.Circle(Vector(2.09, -24.2, 0), Vector(0, 0, 1), 0.79), math.radians(103), math.radians(197)),  # 8
    Part.ArcOfCircle(Part.Circle(Vector(1.8, -23, 0), Vector(0, 0, 1), 0.45), math.radians(-77), math.radians(77)),  # 9
    Part.ArcOfCircle(Part.Circle(Vector(2.09, -21.8, 0), Vector(0, 0, 1), 0.79), math.radians(163), math.radians(257)),  # 10
    Part.ArcOfCircle(Part.Circle(Vector(0.9, -21.44, 0), Vector(0, 0, 1), 0.45), math.radians(-17), math.radians(137)),  # 11
], False)
sketch16.addConstraint([
    Sketcher.Constraint("Tangent", 0, 1, 1, 1),
    Sketcher.Constraint("Tangent", 1, 2, 2, 2),
    Sketcher.Constraint("Tangent", 2, 1, 3, 1),
    Sketcher.Constraint("Tangent", 3, 2, 4, 2),
    Sketcher.Constraint("Tangent", 4, 1, 5, 1),
    Sketcher.Constraint("Tangent", 5, 2, 6, 2),
    Sketcher.Constraint("Tangent", 6, 1, 7, 1),
    Sketcher.Constraint("Tangent", 7, 2, 8, 2),
    Sketcher.Constraint("Tangent", 8, 1, 9, 1),
    Sketcher.Constraint("Tangent", 9, 2, 10, 2),
    Sketcher.Constraint("Tangent", 10, 1, 11, 1),
    Sketcher.Constraint("Tangent", 11, 2, 0, 2),
    Sketcher.Constraint("Equal", 0, 2),
    Sketcher.Constraint("Equal", 1, 3),
    Sketcher.Constraint("Equal", 2, 4),
    Sketcher.Constraint("Equal", 3, 5),
    Sketcher.Constraint("Equal", 4, 6),
    Sketcher.Constraint("Equal", 5, 7),
    Sketcher.Constraint("Equal", 6, 8),
    Sketcher.Constraint("Equal", 7, 9),
    Sketcher.Constraint("Equal", 8, 10),
    Sketcher.Constraint("Equal", 9, 11),
    Sketcher.Constraint("Symmetric", 5, 3, 7, 3, -2),
    Sketcher.Constraint("Symmetric", 3, 3, 9, 3, -2),
    Sketcher.Constraint("Symmetric", 1, 3, 11, 3, -2),
    Sketcher.Constraint("Vertical", 2, 3, 4, 3),
    Sketcher.Constraint("Vertical", 1, 3, 5, 3),
    Sketcher.Constraint("Radius", 1, 0.45),
    Sketcher.Constraint("DistanceY", 3, 3, -1, 1, 23.0),
    Sketcher.Constraint("DistanceX", 1, 3, -1, 1, 0.9),
    Sketcher.Constraint("DistanceX", 3, 3, -1, 1, 1.8),
    Sketcher.Constraint("Radius", 0, 0.7875),
    Sketcher.Constraint("DistanceY", 2, 3, -1, 1, 21.796),
])
pocket2 = doc.addObject("PartDesign::Pocket", "Pocket001")
body.addObject(pocket2)
pocket2.Profile = sketch16
pocket2.Length = 2.48

# Sketch on XY plane
sketch17 = doc.addObject("Sketcher::SketchObject", "Sketch016")
body.addObject(sketch17)
sketch17.AttachmentSupport = (doc.XY_Plane, [""])
sketch17.MapMode = "FlatFace"
sketch17.addGeometry([
    Part.LineSegment(Vector(9.87, 0, 0), Vector(12, 0, 0)),  # 0
    Part.LineSegment(Vector(12, 0, 0), Vector(12, 4, 0)),  # 1
    Part.LineSegment(Vector(12, 4, 0), Vector(7.6, 4, 0)),  # 2
    Part.LineSegment(Vector(7.6, 4, 0), Vector(7.6, 3.5, 0)),  # 3
    Part.LineSegment(Vector(7.6, 3.5, 0), Vector(11.2, 3.5, 0)),  # 4
    Part.ArcOfCircle(Part.Circle(Vector(11.2, 3.1, 0), Vector(0, 0, 1), 0.4), math.radians(0), math.radians(90)),  # 5
    Part.LineSegment(Vector(11.6, 3.1, 0), Vector(11.6, 1.73, 0)),  # 6
    Part.LineSegment(Vector(11.6, 1.73, 0), Vector(9.87, 0, 0)),  # 7
], False)
sketch17.addConstraint([
    Sketcher.Constraint("Coincident", 0, 2, 1, 1),
    Sketcher.Constraint("Coincident", 1, 2, 2, 1),
    Sketcher.Constraint("Coincident", 2, 2, 3, 1),
    Sketcher.Constraint("Coincident", 3, 2, 4, 1),
    Sketcher.Constraint("Tangent", 4, 2, 5, 2),
    Sketcher.Constraint("Tangent", 5, 1, 6, 1),
    Sketcher.Constraint("Coincident", 6, 2, 7, 1),
    Sketcher.Constraint("Coincident", 7, 2, 0, 1),
    Sketcher.Constraint("Horizontal", 0),
    Sketcher.Constraint("Vertical", 1),
    Sketcher.Constraint("Horizontal", 2),
    Sketcher.Constraint("Vertical", 3),
    Sketcher.Constraint("Horizontal", 4),
    Sketcher.Constraint("Vertical", 6),
    Sketcher.Constraint("PointOnObject", 0, 2, -1),
    Sketcher.Constraint("Radius", 5, 0.4),
    Sketcher.Constraint("DistanceY", 1, 1, 1, 2, 4.0),
    Sketcher.Constraint("Angle", 7, Q("-135 deg")),
    Sketcher.Constraint("DistanceX", 2, 2, 2, 1, 4.4),
    Sketcher.Constraint("DistanceX", 4, 1, 4, 2, 3.6),
    Sketcher.Constraint("DistanceY", 3, 2, 3, 1, 0.5),
    Sketcher.Constraint("DistanceX", -1, 1, 0, 2, 12.0),
    Sketcher.Constraint("DistanceX", 0, 1, 0, 2, 2.132),
])
groove7 = doc.addObject("PartDesign::Groove", "Groove006")
body.addObject(groove7)
groove7.Profile = sketch17
groove7.ReferenceAxis = (sketch17, ["H_Axis"])
groove7.Angle = 360

# Sketch on YZ plane
sketch18 = doc.addObject("Sketcher::SketchObject", "Sketch017")
body.addObject(sketch18)
sketch18.AttachmentSupport = (doc.YZ_Plane, [""])
sketch18.MapMode = "FlatFace"
sketch18.AttachmentOffset = App.Placement(Vector(0, 0, 11.6), App.Rotation())
sketch18.addGeometry([
    Part.LineSegment(Vector(-1.5, 0.9, 0), Vector(-1.5, -0.9, 0)),  # 0
    Part.LineSegment(Vector(-1.5, -0.9, 0), Vector(0, -1.7, 0)),  # 1
    Part.LineSegment(Vector(0, -1.7, 0), Vector(1.5, -0.9, 0)),  # 2
    Part.LineSegment(Vector(1.5, -0.9, 0), Vector(1.5, 0.9, 0)),  # 3
    Part.LineSegment(Vector(1.5, 0.9, 0), Vector(0, 1.7, 0)),  # 4
    Part.LineSegment(Vector(0, 1.7, 0), Vector(-1.5, 0.9, 0)),  # 5
], False)
sketch18.addConstraint([
    Sketcher.Constraint("Coincident", 0, 2, 1, 1),
    Sketcher.Constraint("Coincident", 1, 2, 2, 1),
    Sketcher.Constraint("Coincident", 2, 2, 3, 1),
    Sketcher.Constraint("Coincident", 3, 2, 4, 1),
    Sketcher.Constraint("Coincident", 4, 2, 5, 1),
    Sketcher.Constraint("Coincident", 5, 2, 0, 1),
    Sketcher.Constraint("Vertical", 0),
    Sketcher.Constraint("Vertical", 3),
    Sketcher.Constraint("Symmetric", 0, 2, 3, 2, -1, 1),
    Sketcher.Constraint("Symmetric", 1, 2, 4, 2, -1, 1),
    Sketcher.Constraint("PointOnObject", 1, 2, -2),
    Sketcher.Constraint("Parallel", 2, 5),
    Sketcher.Constraint("Horizontal", 0, 2, 2, 2),
    Sketcher.Constraint("DistanceX", 0, 2, 2, 2, 3.0),
    Sketcher.Constraint("DistanceY", 0, 2, 0, 1, 1.732),
    Sketcher.Constraint("Distance", 1, 1.732),
])
pocket3 = doc.addObject("PartDesign::Pocket", "Pocket002")
body.addObject(pocket3)
pocket3.Profile = sketch18
pocket3.Length = 2

doc.recompute()
